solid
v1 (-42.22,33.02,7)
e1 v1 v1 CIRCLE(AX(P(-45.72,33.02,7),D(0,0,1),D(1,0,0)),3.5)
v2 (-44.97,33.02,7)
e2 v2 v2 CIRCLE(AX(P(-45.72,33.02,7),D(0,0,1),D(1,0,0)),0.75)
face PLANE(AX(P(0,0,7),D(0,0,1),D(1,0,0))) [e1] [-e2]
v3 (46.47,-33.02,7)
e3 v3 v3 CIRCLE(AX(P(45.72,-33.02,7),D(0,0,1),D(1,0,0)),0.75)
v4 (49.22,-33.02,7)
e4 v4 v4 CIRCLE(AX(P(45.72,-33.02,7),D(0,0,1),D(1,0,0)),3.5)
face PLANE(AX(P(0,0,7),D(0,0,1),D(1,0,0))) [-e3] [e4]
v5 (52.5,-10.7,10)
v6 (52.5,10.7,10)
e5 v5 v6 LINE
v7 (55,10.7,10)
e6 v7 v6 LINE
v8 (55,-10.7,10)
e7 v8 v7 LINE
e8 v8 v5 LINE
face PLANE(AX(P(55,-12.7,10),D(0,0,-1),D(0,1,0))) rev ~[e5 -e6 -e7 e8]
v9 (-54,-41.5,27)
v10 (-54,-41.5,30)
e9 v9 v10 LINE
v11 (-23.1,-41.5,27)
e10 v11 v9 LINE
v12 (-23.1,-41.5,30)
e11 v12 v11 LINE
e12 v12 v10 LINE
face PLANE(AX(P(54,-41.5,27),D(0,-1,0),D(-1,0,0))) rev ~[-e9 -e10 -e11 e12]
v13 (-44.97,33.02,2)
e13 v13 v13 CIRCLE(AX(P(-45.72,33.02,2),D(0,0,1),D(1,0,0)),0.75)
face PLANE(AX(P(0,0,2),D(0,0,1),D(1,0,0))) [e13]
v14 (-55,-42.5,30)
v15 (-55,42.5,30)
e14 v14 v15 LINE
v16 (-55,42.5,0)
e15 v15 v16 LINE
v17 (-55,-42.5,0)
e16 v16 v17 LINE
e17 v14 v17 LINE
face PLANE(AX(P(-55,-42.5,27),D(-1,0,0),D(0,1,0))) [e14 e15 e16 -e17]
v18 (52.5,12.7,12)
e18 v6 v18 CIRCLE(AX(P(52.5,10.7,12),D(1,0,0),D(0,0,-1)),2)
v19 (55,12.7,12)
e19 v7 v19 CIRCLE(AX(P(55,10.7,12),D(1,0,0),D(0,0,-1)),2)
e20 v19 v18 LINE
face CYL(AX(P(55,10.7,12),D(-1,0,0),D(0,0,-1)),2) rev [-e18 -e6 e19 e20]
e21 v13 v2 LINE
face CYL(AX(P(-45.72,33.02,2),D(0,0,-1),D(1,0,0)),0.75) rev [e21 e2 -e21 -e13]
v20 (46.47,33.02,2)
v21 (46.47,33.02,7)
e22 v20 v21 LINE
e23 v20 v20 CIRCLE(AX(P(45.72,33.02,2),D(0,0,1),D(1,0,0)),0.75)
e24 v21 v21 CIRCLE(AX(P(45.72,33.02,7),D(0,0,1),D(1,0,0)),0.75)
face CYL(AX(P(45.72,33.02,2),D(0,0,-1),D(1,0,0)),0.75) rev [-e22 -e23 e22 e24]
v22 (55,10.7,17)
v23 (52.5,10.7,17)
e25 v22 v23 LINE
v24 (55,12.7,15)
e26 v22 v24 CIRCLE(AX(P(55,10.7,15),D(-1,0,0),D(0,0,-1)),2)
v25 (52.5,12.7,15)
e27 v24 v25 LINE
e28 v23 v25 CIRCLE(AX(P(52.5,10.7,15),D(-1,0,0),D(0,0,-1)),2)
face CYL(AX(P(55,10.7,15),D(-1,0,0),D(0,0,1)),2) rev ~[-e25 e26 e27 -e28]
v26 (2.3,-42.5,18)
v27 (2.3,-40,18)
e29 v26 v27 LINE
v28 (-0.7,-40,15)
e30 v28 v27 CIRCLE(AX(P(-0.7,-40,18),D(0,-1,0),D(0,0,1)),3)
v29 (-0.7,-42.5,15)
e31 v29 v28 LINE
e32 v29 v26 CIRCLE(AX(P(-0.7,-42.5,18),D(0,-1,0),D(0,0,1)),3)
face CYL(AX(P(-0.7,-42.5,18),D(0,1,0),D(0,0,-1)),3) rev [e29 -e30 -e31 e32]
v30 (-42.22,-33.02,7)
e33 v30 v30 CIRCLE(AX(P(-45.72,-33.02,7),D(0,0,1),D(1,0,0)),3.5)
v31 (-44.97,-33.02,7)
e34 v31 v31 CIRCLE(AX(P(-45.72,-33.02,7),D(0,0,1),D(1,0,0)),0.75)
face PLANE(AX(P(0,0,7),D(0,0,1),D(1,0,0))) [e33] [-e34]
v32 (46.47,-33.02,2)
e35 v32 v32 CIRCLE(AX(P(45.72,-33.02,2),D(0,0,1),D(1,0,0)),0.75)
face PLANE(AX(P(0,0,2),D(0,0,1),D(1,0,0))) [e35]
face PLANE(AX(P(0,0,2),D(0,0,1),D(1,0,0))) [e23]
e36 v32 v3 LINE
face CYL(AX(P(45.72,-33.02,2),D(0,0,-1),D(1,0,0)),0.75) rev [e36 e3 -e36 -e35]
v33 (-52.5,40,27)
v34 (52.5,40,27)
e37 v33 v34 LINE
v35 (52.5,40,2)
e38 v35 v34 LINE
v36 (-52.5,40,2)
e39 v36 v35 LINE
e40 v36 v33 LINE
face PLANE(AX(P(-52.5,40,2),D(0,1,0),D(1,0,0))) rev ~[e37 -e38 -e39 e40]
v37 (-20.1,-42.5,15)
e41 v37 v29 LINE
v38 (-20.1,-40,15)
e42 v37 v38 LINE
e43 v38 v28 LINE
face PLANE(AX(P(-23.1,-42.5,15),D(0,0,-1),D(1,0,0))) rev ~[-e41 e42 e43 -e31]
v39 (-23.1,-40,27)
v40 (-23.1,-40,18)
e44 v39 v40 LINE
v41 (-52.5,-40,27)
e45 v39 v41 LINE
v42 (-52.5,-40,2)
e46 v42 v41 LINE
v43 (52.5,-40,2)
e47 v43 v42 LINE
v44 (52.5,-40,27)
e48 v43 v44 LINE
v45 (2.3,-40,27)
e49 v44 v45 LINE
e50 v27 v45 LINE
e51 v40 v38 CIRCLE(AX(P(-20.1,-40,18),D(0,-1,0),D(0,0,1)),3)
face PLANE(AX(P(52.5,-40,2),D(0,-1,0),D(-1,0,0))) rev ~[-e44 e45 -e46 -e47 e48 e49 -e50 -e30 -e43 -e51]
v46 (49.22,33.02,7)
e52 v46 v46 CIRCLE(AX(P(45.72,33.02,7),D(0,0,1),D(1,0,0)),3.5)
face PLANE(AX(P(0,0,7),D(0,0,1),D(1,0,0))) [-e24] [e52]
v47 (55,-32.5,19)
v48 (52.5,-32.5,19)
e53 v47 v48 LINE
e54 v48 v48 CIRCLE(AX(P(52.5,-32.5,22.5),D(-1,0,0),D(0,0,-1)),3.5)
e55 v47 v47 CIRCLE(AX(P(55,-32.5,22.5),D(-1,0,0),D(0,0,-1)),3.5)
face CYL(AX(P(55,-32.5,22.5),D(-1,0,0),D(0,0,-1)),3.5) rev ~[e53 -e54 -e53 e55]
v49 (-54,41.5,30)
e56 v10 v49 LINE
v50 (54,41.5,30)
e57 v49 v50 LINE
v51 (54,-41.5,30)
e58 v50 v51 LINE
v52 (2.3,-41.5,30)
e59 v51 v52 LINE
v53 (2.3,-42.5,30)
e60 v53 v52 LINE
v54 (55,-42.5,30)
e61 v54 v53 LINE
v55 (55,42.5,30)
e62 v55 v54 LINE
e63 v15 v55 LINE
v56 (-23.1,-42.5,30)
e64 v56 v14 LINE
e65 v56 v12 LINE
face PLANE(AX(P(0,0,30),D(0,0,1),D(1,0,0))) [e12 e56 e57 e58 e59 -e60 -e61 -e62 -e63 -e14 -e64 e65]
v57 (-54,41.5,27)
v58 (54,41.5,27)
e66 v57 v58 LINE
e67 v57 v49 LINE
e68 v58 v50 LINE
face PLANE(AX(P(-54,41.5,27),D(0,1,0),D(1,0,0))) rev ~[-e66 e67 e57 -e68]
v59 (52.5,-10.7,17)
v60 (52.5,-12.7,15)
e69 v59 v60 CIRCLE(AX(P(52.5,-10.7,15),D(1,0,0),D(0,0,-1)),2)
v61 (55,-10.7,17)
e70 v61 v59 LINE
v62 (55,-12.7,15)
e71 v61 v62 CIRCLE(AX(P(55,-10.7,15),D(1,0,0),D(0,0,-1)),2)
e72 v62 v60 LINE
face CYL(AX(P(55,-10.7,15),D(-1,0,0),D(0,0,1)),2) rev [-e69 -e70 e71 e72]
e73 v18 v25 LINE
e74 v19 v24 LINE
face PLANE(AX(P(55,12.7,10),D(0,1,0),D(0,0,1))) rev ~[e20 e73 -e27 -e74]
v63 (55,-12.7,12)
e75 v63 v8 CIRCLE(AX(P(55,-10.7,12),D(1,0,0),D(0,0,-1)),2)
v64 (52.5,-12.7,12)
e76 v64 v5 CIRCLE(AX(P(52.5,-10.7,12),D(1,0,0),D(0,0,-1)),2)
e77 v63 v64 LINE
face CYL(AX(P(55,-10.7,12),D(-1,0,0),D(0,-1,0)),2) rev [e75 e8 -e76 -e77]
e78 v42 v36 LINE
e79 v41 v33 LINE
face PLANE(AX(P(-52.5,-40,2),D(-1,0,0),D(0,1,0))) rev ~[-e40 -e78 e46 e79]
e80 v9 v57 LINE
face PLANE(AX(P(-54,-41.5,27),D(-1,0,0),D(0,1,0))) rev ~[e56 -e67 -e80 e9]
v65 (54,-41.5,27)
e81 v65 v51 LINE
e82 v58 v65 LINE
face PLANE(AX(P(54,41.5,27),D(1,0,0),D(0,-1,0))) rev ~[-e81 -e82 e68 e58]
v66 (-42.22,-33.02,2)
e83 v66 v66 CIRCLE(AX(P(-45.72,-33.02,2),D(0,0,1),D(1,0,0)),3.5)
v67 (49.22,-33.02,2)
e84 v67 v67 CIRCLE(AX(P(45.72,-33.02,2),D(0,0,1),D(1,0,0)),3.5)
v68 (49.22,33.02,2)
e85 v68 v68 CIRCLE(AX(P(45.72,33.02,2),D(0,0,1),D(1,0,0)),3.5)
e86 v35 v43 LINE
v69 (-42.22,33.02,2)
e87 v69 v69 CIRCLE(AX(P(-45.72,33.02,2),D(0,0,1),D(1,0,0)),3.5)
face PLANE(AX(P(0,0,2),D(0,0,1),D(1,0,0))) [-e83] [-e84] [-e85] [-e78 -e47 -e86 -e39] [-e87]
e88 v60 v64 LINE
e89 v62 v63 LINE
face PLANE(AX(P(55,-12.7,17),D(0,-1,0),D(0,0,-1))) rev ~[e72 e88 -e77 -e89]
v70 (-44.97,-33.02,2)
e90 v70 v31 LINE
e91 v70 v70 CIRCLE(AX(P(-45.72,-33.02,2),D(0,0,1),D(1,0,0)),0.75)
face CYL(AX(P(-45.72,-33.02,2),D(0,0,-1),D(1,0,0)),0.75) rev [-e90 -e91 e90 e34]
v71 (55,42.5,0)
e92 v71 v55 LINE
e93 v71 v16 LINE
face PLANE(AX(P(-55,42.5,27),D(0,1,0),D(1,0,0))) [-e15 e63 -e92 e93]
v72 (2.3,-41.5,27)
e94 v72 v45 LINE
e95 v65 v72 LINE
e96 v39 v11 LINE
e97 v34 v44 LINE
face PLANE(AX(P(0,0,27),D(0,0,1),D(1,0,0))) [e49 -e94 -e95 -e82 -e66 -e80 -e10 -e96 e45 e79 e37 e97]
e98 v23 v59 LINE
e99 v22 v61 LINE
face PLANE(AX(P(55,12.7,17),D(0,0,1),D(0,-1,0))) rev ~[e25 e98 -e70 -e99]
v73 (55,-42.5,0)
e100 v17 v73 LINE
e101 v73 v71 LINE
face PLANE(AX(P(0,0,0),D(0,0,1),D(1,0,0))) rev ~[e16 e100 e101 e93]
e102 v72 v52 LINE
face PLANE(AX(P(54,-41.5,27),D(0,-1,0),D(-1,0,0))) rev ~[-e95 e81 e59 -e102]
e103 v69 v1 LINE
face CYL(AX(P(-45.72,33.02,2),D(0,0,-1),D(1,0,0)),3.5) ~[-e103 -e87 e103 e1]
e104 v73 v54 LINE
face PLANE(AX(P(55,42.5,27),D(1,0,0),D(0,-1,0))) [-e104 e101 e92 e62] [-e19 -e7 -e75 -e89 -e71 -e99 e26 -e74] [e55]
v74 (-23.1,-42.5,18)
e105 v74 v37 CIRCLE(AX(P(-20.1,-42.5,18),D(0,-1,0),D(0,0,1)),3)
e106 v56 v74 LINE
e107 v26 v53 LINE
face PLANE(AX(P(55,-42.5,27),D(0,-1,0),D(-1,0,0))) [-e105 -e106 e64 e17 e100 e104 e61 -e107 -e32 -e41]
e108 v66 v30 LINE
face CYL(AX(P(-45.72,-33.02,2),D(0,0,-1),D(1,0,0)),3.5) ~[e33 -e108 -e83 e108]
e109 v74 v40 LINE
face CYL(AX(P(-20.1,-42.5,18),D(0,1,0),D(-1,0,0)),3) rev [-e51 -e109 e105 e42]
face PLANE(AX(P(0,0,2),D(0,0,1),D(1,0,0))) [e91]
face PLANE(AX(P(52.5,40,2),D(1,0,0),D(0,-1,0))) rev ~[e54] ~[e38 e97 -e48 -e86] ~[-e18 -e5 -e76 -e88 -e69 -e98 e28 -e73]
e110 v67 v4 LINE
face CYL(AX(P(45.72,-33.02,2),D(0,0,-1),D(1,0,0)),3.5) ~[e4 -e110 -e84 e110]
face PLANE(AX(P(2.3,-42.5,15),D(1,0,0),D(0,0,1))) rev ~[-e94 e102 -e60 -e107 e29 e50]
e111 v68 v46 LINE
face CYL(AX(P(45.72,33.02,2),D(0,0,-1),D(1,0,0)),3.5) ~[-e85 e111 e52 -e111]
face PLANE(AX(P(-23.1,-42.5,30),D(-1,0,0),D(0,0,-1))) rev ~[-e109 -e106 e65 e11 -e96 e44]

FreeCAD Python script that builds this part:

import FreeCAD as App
import Part
import Sketcher

V = App.Vector
Q = App.Units.Quantity


def edges_at(feature, points):
    """Names of the edges that pass closest to the given points."""
    edges = feature.Shape.Edges
    near = lambda p: min(range(len(edges)), key=lambda i: edges[i].distToShape(Part.Vertex(*p))[0])
    return sorted({f"Edge{near(p) + 1}" for p in points})


def add_polygon(sketch, points):
    """Adds a closed chain of lines whose ends are joined by coincident constraints."""
    first, n = sketch.GeometryCount, len(points)
    for a, b in zip(points, points[1:] + points[:1]):
        sketch.addGeometry(Part.LineSegment(App.Vector(*a, 0), App.Vector(*b, 0)), False)
    for i in range(n):
        sketch.addConstraint(Sketcher.Constraint("Coincident", first + i, 2, first + (i + 1) % n, 1))

doc = App.newDocument("Part")
body = doc.addObject("PartDesign::Body", "Body")

# Sketch on XY plane
sketch1 = doc.addObject("Sketcher::SketchObject", "Sketch")
body.addObject(sketch1)
sketch1.AttachmentSupport = (doc.XY_Plane, [""])
sketch1.MapMode = "FlatFace"
add_polygon(sketch1, [(-55, 42), (-55, -42), (55, -42), (55, 42)])  # lines 0-3
sketch1.addConstraint(Sketcher.Constraint("Vertical", 0))
sketch1.addConstraint(Sketcher.Constraint("Horizontal", 1))
sketch1.addConstraint(Sketcher.Constraint("Vertical", 2))
sketch1.addConstraint(Sketcher.Constraint("Horizontal", 3))
sketch1.addConstraint(Sketcher.Constraint("Symmetric", 0, 2, 2, 2, -1, 1))
sketch1.addConstraint(Sketcher.Constraint("DistanceX", 1, 1, 1, 2, Q("110 mm")))
sketch1.addConstraint(Sketcher.Constraint("DistanceY", 0, 2, 0, 1, Q("85 mm")))
pad1 = doc.addObject("PartDesign::Pad", "Pad")
body.addObject(pad1)
pad1.Profile = sketch1
pad1.Length = 2

# Sketch on XY plane
sketch2 = doc.addObject("Sketcher::SketchObject", "Sketch001")
body.addObject(sketch2)
sketch2.AttachmentSupport = (doc.XY_Plane, [""])
sketch2.MapMode = "FlatFace"
sketch2.AttachmentOffset = App.Placement(V(0, 0, 2), App.Rotation())
add_polygon(sketch2, [(55, -42), (55, 42), (-55, 42), (-55, -42)])  # lines 0-3
add_polygon(sketch2, [(52, 40), (52, -40), (-52, -40), (-52, 40)])  # lines 4-7
sketch2.addConstraint(Sketcher.Constraint("Vertical", 0))
sketch2.addConstraint(Sketcher.Constraint("Horizontal", 1))
sketch2.addConstraint(Sketcher.Constraint("Vertical", 2))
sketch2.addConstraint(Sketcher.Constraint("Horizontal", 3))
sketch2.addConstraint(Sketcher.Constraint("Vertical", 4))
sketch2.addConstraint(Sketcher.Constraint("Horizontal", 5))
sketch2.addConstraint(Sketcher.Constraint("Vertical", 6))
sketch2.addConstraint(Sketcher.Constraint("Horizontal", 7))
sketch2.addConstraint(Sketcher.Constraint("Symmetric", 0, 2, 2, 2, -1, 1))
sketch2.addConstraint(Sketcher.Constraint("Symmetric", 4, 2, 6, 2, -1, 1))
sketch2.addConstraint(Sketcher.Constraint("DistanceX", 5, 2, 5, 1, Q("105 mm")))
sketch2.addConstraint(Sketcher.Constraint("DistanceY", 4, 2, 4, 1, Q("80 mm")))
sketch2.addConstraint(Sketcher.Constraint("DistanceX", 1, 2, 1, 1, Q("110 mm")))
sketch2.addConstraint(Sketcher.Constraint("DistanceY", 0, 1, 0, 2, Q("85 mm")))
pad2 = doc.addObject("PartDesign::Pad", "Pad001")
body.addObject(pad2)
pad2.Profile = sketch2
pad2.Length = 25

# Sketch on XY plane
sketch3 = doc.addObject("Sketcher::SketchObject", "Sketch002")
body.addObject(sketch3)
sketch3.AttachmentSupport = (doc.XY_Plane, [""])
sketch3.MapMode = "FlatFace"
sketch3.AttachmentOffset = App.Placement(V(0, 0, 2), App.Rotation())
sketch3.addGeometry(Part.Circle(V(-45.7, 33, 0), V(0, 0, 1), 3.5), False)
sketch3.addGeometry(Part.Circle(V(-45.7, 33, 0), V(0, 0, 1), 0.8), False)
sketch3.addGeometry(Part.Circle(V(45.7, 33, 0), V(0, 0, 1), 3.5), False)
sketch3.addGeometry(Part.Circle(V(45.7, 33, 0), V(0, 0, 1), 0.8), False)
sketch3.addGeometry(Part.Circle(V(-45.7, -33, 0), V(0, 0, 1), 3.5), False)
sketch3.addGeometry(Part.Circle(V(-45.7, -33, 0), V(0, 0, 1), 0.8), False)
sketch3.addGeometry(Part.Circle(V(45.7, -33, 0), V(0, 0, 1), 3.5), False)
sketch3.addGeometry(Part.Circle(V(45.7, -33, 0), V(0, 0, 1), 0.8), False)
sketch3.addConstraint(Sketcher.Constraint("Coincident", 1, 3, 0, 3))
sketch3.addConstraint(Sketcher.Constraint("Coincident", 3, 3, 2, 3))
sketch3.addConstraint(Sketcher.Constraint("Coincident", 5, 3, 4, 3))
sketch3.addConstraint(Sketcher.Constraint("Coincident", 7, 3, 6, 3))
sketch3.addConstraint(Sketcher.Constraint("Equal", 0, 2))
sketch3.addConstraint(Sketcher.Constraint("Equal", 1, 3))
sketch3.addConstraint(Sketcher.Constraint("Equal", 2, 4))
sketch3.addConstraint(Sketcher.Constraint("Equal", 3, 5))
sketch3.addConstraint(Sketcher.Constraint("Equal", 4, 6))
sketch3.addConstraint(Sketcher.Constraint("Equal", 5, 7))
sketch3.addConstraint(Sketcher.Constraint("Symmetric", 2, 3, 4, 3, -1, 1))
sketch3.addConstraint(Sketcher.Constraint("Symmetric", 0, 3, 6, 3, -1, 1))
sketch3.addConstraint(Sketcher.Constraint("Symmetric", 0, 3, 2, 3, -2))
sketch3.addConstraint(Sketcher.Constraint("Diameter", 0, Q("7 mm")))
sketch3.addConstraint(Sketcher.Constraint("Diameter", 1, Q("1.5 mm")))
sketch3.addConstraint(Sketcher.Constraint("DistanceX", 0, 3, -1, 1, Q("45.72 mm")))
sketch3.addConstraint(Sketcher.Constraint("DistanceY", -1, 1, 0, 3, Q("33.02 mm")))
pad3 = doc.addObject("PartDesign::Pad", "Pad002")
body.addObject(pad3)
pad3.Profile = sketch3
pad3.Length = 5

# Sketch on XY plane
sketch4 = doc.addObject("Sketcher::SketchObject", "Sketch003")
body.addObject(sketch4)
sketch4.AttachmentSupport = (doc.XY_Plane, [""])
sketch4.MapMode = "FlatFace"
sketch4.AttachmentOffset = App.Placement(V(0, 0, 27), App.Rotation())
add_polygon(sketch4, [(-55, -42), (55, -42), (55, 42), (-55, 42)])  # lines 0-3
add_polygon(sketch4, [(54, 42), (54, -42), (-54, -42), (-54, 42)])  # lines 4-7
sketch4.addConstraint(Sketcher.Constraint("Horizontal", 0))
sketch4.addConstraint(Sketcher.Constraint("Vertical", 1))
sketch4.addConstraint(Sketcher.Constraint("Horizontal", 2))
sketch4.addConstraint(Sketcher.Constraint("Vertical", 3))
sketch4.addConstraint(Sketcher.Constraint("Vertical", 4))
sketch4.addConstraint(Sketcher.Constraint("Horizontal", 5))
sketch4.addConstraint(Sketcher.Constraint("Vertical", 6))
sketch4.addConstraint(Sketcher.Constraint("Horizontal", 7))
sketch4.addConstraint(Sketcher.Constraint("Symmetric", 0, 2, 2, 2, -1, 1))
sketch4.addConstraint(Sketcher.Constraint("Symmetric", 4, 2, 6, 2, -1, 1))
sketch4.addConstraint(Sketcher.Constraint("DistanceX", 5, 2, 5, 1, Q("108 mm")))
sketch4.addConstraint(Sketcher.Constraint("DistanceY", 4, 2, 4, 1, Q("83 mm")))
sketch4.addConstraint(Sketcher.Constraint("DistanceX", 0, 1, 0, 2, Q("110 mm")))
sketch4.addConstraint(Sketcher.Constraint("DistanceY", 1, 1, 1, 2, Q("85 mm")))
pad4 = doc.addObject("PartDesign::Pad", "Pad003")
body.addObject(pad4)
pad4.Profile = sketch4
pad4.Length = 3

# Sketch on XZ plane
sketch5 = doc.addObject("Sketcher::SketchObject", "Sketch004")
body.addObject(sketch5)
sketch5.AttachmentSupport = (doc.XZ_Plane, [""])
sketch5.MapMode = "FlatFace"
sketch5.AttachmentOffset = App.Placement(V(0, 0, 42.5), App.Rotation())
add_polygon(sketch5, [(-23, 30), (-23, 15), (2, 15), (2, 30)])  # lines 0-3
sketch5.addConstraint(Sketcher.Constraint("Vertical", 0))
sketch5.addConstraint(Sketcher.Constraint("Horizontal", 1))
sketch5.addConstraint(Sketcher.Constraint("Vertical", 2))
sketch5.addConstraint(Sketcher.Constraint("Horizontal", 3))
sketch5.addConstraint(Sketcher.Constraint("DistanceY", 0, 2, 0, 1, Q("15 mm")))
sketch5.addConstraint(Sketcher.Constraint("DistanceX", 1, 1, 1, 2, Q("25.4 mm")))
sketch5.addConstraint(Sketcher.Constraint("DistanceY", -1, 1, 0, 2, Q("15 mm")))
sketch5.addConstraint(Sketcher.Constraint("DistanceX", 0, 2, -1, 1, Q("23.1 mm")))
pocket1 = doc.addObject("PartDesign::Pocket", "Pocket")
body.addObject(pocket1)
pocket1.Profile = sketch5
pocket1.Length = 3
doc.recompute()

fillet = doc.addObject("PartDesign::Fillet", "Fillet")
body.addObject(fillet)
fillet.Base = (pocket1, edges_at(pocket1, [(-23.1, -41.25, 15), (2.3, -41.25, 15)]))
fillet.Radius = 3

# Sketch on YZ plane
sketch6 = doc.addObject("Sketcher::SketchObject", "Sketch005")
body.addObject(sketch6)
sketch6.AttachmentSupport = (doc.YZ_Plane, [""])
sketch6.MapMode = "FlatFace"
sketch6.AttachmentOffset = App.Placement(V(0, 0, 55), App.Rotation())
sketch6.addGeometry(Part.Circle(V(-32.5, 22.5, 0), V(0, 0, 1), 3.5), False)
sketch6.addConstraint(Sketcher.Constraint("Diameter", 0, Q("7 mm")))
sketch6.addConstraint(Sketcher.Constraint("DistanceX", 0, 3, -1, 1, Q("32.5 mm")))
sketch6.addConstraint(Sketcher.Constraint("DistanceY", -1, 1, 0, 3, Q("22.5 mm")))
doc.recompute()
hole = doc.addObject("PartDesign::Hole", "Hole")
body.addObject(hole)
hole.Profile = sketch6
hole.ThreadType = "None"
hole.Diameter = 7
hole.DepthType = "Dimension"
hole.Depth = 2.5
hole.DrillPoint = "Flat"

# Sketch on YZ plane
sketch7 = doc.addObject("Sketcher::SketchObject", "Sketch006")
body.addObject(sketch7)
sketch7.AttachmentSupport = (doc.YZ_Plane, [""])
sketch7.MapMode = "FlatFace"
sketch7.AttachmentOffset = App.Placement(V(0, 0, 55), App.Rotation())
add_polygon(sketch7, [(13, 17), (-13, 17), (-13, 10), (13, 10)])  # lines 0-3
sketch7.addConstraint(Sketcher.Constraint("Horizontal", 0))
sketch7.addConstraint(Sketcher.Constraint("Vertical", 1))
sketch7.addConstraint(Sketcher.Constraint("Horizontal", 2))
sketch7.addConstraint(Sketcher.Constraint("Vertical", 3))
sketch7.addConstraint(Sketcher.Constraint("DistanceY", 1, 2, 1, 1, Q("7 mm")))
sketch7.addConstraint(Sketcher.Constraint("DistanceX", 0, 2, 0, 1, Q("25.4 mm")))
sketch7.addConstraint(Sketcher.Constraint("DistanceY", -1, 1, 1, 2, Q("10 mm")))
sketch7.addConstraint(Sketcher.Constraint("DistanceX", 0, 2, -1, 1, Q("12.7 mm")))
pocket2 = doc.addObject("PartDesign::Pocket", "Pocket001")
body.addObject(pocket2)
pocket2.Profile = sketch7
pocket2.Length = 3
doc.recompute()

fillet2 = doc.addObject("PartDesign::Fillet", "Fillet001")
body.addObject(fillet2)
fillet2.Base = (pocket2, edges_at(pocket2, [
    (53.75, -12.7, 10),
    (53.75, -12.7, 17),
    (53.75, 12.7, 17),
    (53.75, 12.7, 10),
]))
fillet2.Radius = 2

doc.recompute()
